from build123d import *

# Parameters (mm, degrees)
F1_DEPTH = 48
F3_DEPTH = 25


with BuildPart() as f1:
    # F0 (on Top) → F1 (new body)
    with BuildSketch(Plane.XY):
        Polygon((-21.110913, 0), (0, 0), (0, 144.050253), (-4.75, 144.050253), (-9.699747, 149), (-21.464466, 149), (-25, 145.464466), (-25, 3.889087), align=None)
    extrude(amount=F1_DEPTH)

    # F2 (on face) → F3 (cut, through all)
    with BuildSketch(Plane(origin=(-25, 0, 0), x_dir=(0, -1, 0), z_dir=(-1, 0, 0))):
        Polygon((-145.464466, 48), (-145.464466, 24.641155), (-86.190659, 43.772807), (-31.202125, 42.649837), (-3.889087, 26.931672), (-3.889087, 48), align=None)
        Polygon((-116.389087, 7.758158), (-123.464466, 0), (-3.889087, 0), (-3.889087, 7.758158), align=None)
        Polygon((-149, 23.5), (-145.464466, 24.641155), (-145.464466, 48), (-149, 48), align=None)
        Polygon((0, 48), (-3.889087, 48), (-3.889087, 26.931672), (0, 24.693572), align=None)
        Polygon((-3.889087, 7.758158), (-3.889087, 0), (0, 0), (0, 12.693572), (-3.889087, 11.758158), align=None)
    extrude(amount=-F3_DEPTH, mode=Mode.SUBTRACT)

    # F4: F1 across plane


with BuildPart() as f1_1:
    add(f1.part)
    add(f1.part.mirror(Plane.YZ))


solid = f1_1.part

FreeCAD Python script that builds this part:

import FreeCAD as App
import Part
import Sketcher
Q = App.Units.Quantity


def add_polygon(sketch, points):
    """Adds a closed chain of lines whose ends are joined by coincident constraints."""
    first, n = sketch.GeometryCount, len(points)
    for a, b in zip(points, points[1:] + points[:1]):
        sketch.addGeometry(Part.LineSegment(App.Vector(*a, 0), App.Vector(*b, 0)), False)
    for i in range(n):
        sketch.addConstraint(Sketcher.Constraint("Coincident", first + i, 2, first + (i + 1) % n, 1))

doc = App.newDocument("Part")
body = doc.addObject("PartDesign::Body", "Body")

# Sketch on XY plane
sketch1 = doc.addObject("Sketcher::SketchObject", "Sketch")
body.addObject(sketch1)
sketch1.AttachmentSupport = (doc.XY_Plane, [""])
sketch1.MapMode = "FlatFace"
add_polygon(sketch1, [(-21.110913, 0), (0, 0), (0, 144.050253), (-4.75, 144.050253), (-9.699747, 149), (-21.464466, 149), (-25, 145.464466), (-25, 3.889087)])  # lines 0-7
sketch1.addConstraint([
    Sketcher.Constraint("Horizontal", 0),
    Sketcher.Constraint("Vertical", 1),
    Sketcher.Constraint("Horizontal", 2),
    Sketcher.Constraint("Horizontal", 4),
    Sketcher.Constraint("Vertical", 6),
    Sketcher.Constraint("Coincident", 0, 2, -1, 1),
    Sketcher.Constraint("Perpendicular", 3, 5),
    Sketcher.Constraint("Perpendicular", 5, 7),
    Sketcher.Constraint("Angle", 3, Q("135 deg")),
    Sketcher.Constraint("Distance", 3, Q("6.999999 mm")),
    Sketcher.Constraint("Distance", 5, Q("5 mm")),
    Sketcher.Constraint("DistanceY", -1, 1, 3, 2, Q("149 mm")),
    Sketcher.Constraint("DistanceX", 5, 2, -1, 1, Q("25 mm")),
    Sketcher.Constraint("Distance", 7, Q("5.5 mm")),
    Sketcher.Constraint("DistanceX", 2, 2, 2, 1, Q("4.75 mm")),
])
pad1 = doc.addObject("PartDesign::Pad", "Pad")
body.addObject(pad1)
pad1.Profile = sketch1
pad1.Length = 48

# Sketch on YZ plane
sketch2 = doc.addObject("Sketcher::SketchObject", "Sketch001")
body.addObject(sketch2)
sketch2.AttachmentSupport = (doc.YZ_Plane, [""])
sketch2.MapMode = "FlatFace"
sketch2.AttachmentOffset = App.Placement(App.Vector(0, 0, -25), App.Rotation())
add_polygon(sketch2, [(145.464466, 24.641155), (86.190659, 43.772807), (31.202125, 42.649837), (3.889087, 26.931672), (0, 24.693572), (0, 48), (149, 48), (149, 23.5)])  # lines 0-7
add_polygon(sketch2, [(116.389087, 7.758158), (123.464466, 0), (0, 0), (0, 12.693572), (3.889087, 11.758158), (3.889087, 7.758158)])  # lines 8-13
sketch2.addConstraint([
    Sketcher.Constraint("Vertical", 4),
    Sketcher.Constraint("Horizontal", 5),
    Sketcher.Constraint("Vertical", 6),
    Sketcher.Constraint("Horizontal", 9),
    Sketcher.Constraint("Vertical", 10),
    Sketcher.Constraint("Vertical", 12),
    Sketcher.Constraint("Horizontal", 13),
    Sketcher.Constraint("Coincident", 9, 2, -1, 1),
    Sketcher.Constraint("PointOnObject", 3, 2, -2),
    Sketcher.Constraint("Parallel", 2, 3),
    Sketcher.Constraint("Parallel", 0, 7),
    Sketcher.Constraint("Vertical", 2, 2, 11, 2),
    Sketcher.Constraint("DistanceX", 5, 1, 5, 2, Q("149 mm")),
    Sketcher.Constraint("DistanceY", 12, 2, 12, 1, Q("4 mm")),
    Sketcher.Constraint("Distance", 1, Q("54.999999 mm")),
    Sketcher.Constraint("Distance", 11, Q("4 mm")),
    Sketcher.Constraint("DistanceX", 13, 1, 13, 2, Q("112.5 mm")),
    Sketcher.Constraint("DistanceY", 6, 2, 6, 1, Q("24.5 mm")),
    Sketcher.Constraint("DistanceY", -1, 1, 4, 2, Q("48 mm")),
    Sketcher.Constraint("DistanceX", 8, 2, 7, 2, Q("22 mm")),
    Sketcher.Constraint("DistanceY", 10, 2, 3, 2, Q("12 mm")),
    Sketcher.Constraint("Distance", 8, Q("10.5 mm")),
    Sketcher.Constraint("Distance", 2, Q("31.512898 mm")),
    Sketcher.Constraint("DistanceY", 4, 1, 4, 2, Q("23.306428 mm")),
    Sketcher.Constraint("DistanceY", 3, 2, 2, 2, Q("2.2381 mm")),
    Sketcher.Constraint("DistanceX", 9, 2, 9, 1, Q("123.464466 mm")),
    Sketcher.Constraint("DistanceX", -1, 1, 0, 2, Q("86.190659 mm")),
])
pocket1 = doc.addObject("PartDesign::Pocket", "Pocket")
body.addObject(pocket1)
pocket1.Profile = sketch2
pocket1.Type = "ThroughAll"
pocket1.Reversed = True
body2 = doc.addObject("PartDesign::Body", "Body001")
doc.recompute()

body2.BaseFeature = body
doc.recompute()

mirroring = doc.addObject("Part::Mirroring", "Mirroring")
mirroring.Source = body
mirroring.Base = App.Vector(0, 0, 0)
mirroring.Normal = App.Vector(1, 0, 0)
body3 = doc.addObject("PartDesign::Body", "Body002")
body3.BaseFeature = mirroring
boolean = doc.addObject("PartDesign::Boolean", "Boolean")
body2.addObject(boolean)
boolean.Type = "Fuse"
boolean.addObjects([body3])
doc.recompute()
mirroring.Visibility = False

doc.recompute()
